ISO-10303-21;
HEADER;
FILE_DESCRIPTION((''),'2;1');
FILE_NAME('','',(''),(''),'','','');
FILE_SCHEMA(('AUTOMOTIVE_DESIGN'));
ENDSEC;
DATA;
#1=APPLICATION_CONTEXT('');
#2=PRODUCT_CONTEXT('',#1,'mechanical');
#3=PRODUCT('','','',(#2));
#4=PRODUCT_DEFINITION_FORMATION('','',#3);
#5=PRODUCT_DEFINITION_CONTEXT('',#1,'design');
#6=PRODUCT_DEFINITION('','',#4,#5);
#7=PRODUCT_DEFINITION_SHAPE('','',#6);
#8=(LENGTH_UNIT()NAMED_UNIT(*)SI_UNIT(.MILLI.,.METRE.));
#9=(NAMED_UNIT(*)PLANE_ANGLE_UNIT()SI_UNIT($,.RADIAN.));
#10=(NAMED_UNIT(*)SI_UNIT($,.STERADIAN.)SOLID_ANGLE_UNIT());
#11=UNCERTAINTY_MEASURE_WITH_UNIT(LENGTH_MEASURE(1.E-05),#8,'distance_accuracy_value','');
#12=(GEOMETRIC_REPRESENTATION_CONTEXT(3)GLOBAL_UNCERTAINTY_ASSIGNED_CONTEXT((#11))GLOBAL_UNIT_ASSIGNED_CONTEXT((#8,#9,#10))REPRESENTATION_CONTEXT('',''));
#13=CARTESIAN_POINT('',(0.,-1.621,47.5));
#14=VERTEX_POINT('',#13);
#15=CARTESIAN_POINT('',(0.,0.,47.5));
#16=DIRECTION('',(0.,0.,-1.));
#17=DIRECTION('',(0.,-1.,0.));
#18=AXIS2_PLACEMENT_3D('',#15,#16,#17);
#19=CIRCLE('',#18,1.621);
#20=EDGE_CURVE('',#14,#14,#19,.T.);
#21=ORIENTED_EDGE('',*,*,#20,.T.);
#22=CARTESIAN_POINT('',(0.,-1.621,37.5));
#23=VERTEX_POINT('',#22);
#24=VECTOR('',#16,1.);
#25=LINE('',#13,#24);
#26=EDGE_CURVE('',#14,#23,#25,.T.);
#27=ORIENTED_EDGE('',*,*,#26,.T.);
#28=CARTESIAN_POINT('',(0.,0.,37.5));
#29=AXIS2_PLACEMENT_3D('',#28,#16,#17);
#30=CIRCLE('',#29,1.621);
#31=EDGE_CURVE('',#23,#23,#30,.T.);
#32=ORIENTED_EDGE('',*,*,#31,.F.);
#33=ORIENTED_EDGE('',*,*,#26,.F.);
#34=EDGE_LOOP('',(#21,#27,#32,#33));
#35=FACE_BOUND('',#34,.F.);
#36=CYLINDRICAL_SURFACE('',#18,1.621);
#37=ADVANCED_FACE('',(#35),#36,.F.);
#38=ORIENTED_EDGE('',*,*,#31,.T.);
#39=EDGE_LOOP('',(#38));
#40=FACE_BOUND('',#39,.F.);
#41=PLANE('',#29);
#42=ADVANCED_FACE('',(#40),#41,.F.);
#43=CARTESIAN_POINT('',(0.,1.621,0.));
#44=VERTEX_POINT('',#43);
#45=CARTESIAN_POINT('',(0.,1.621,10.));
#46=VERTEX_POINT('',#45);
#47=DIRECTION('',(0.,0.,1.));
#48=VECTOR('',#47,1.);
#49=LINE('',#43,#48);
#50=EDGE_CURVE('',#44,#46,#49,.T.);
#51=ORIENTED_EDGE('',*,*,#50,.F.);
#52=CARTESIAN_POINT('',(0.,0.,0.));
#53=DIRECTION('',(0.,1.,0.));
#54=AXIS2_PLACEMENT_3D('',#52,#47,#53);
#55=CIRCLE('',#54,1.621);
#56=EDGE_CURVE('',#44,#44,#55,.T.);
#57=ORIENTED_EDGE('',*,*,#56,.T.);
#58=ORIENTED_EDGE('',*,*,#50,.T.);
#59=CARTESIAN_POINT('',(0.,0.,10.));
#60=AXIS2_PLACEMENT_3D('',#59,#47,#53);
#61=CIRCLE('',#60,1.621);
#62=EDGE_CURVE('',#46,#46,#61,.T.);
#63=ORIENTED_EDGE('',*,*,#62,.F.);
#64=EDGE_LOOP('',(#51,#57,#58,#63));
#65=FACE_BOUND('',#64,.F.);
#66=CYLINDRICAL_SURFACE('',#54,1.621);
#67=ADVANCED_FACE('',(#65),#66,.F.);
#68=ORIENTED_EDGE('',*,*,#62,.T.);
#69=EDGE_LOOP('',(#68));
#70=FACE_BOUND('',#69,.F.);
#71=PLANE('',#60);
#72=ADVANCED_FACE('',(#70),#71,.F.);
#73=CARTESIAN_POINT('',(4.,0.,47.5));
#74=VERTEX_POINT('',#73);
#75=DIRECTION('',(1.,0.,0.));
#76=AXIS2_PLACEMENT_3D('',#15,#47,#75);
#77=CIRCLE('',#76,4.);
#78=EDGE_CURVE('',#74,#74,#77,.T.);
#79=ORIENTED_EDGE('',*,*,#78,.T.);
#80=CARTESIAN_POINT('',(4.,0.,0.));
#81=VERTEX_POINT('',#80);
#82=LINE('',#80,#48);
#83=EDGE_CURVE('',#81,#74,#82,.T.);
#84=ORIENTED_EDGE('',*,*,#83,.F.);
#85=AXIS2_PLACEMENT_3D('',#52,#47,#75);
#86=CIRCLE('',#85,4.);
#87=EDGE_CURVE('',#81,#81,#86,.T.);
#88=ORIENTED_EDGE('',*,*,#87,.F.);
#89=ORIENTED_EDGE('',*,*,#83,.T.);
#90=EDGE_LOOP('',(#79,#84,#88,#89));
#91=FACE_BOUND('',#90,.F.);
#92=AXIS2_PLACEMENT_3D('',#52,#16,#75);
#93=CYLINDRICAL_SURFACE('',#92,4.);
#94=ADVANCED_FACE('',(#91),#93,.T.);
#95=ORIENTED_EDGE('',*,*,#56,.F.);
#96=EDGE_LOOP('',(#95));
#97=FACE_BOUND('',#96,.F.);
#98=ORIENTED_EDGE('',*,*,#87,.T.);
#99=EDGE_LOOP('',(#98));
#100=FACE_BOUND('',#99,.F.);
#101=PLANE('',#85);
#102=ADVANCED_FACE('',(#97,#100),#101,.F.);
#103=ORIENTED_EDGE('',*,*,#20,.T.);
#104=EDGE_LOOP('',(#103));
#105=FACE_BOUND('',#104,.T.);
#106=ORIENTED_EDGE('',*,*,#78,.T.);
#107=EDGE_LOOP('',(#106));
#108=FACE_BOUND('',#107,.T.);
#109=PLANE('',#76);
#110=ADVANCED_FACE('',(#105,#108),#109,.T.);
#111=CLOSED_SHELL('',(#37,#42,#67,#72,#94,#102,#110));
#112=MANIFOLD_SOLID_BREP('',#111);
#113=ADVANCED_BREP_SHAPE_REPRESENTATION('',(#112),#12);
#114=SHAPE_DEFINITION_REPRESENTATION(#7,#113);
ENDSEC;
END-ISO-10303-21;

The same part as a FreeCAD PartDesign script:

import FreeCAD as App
import Part
import Sketcher
Q = App.Units.Quantity

doc = App.newDocument("Part")
body = doc.addObject("PartDesign::Body", "Body")

# Sketch on XY plane
sketch1 = body.newObject("Sketcher::SketchObject", "Sketch")
sketch1.AttachmentSupport = (doc.getObject("XY_Plane"), [""])
sketch1.MapMode = "FlatFace"
sketch1.addGeometry(Part.Circle(App.Vector(0, 0, 0), App.Vector(0, 0, 1), 4), False)
sketch1.addConstraint([
    Sketcher.Constraint("Coincident", 0, 3, -1, 1),
    Sketcher.Constraint("Diameter", 0, Q("8 mm")),
])
pad1 = body.newObject("PartDesign::Pad", "Pad")
pad1.Profile = sketch1
pad1.Length = 47.5

# Sketch on XY plane
sketch2 = body.newObject("Sketcher::SketchObject", "Sketch001")
sketch2.AttachmentSupport = (doc.getObject("XY_Plane"), [""])
sketch2.MapMode = "FlatFace"
sketch2.addGeometry(Part.Circle(App.Vector(0, 0, 0), App.Vector(0, 0, 1), 1.6), False)
sketch2.addConstraint([
    Sketcher.Constraint("Coincident", 0, 3, -1, 1),
    Sketcher.Constraint("Diameter", 0, Q("3.242 mm")),
])
doc.recompute()
hole = body.newObject("PartDesign::Hole", "Hole")
hole.Profile = sketch2
hole.ThreadType = "None"
hole.Diameter = 3.242
hole.DepthType = "Dimension"
hole.Depth = 10
hole.DrillPoint = "Flat"
hole.Reversed = True

# Sketch on XY plane
sketch3 = body.newObject("Sketcher::SketchObject", "Sketch002")
sketch3.AttachmentSupport = (doc.getObject("XY_Plane"), [""])
sketch3.MapMode = "FlatFace"
sketch3.AttachmentOffset = App.Placement(App.Vector(0, 0, 47.5), App.Rotation())
sketch3.addGeometry(Part.Circle(App.Vector(0, 0, 0), App.Vector(0, 0, 1), 1.6), False)
sketch3.addConstraint([
    Sketcher.Constraint("Coincident", 0, 3, -1, 1),
    Sketcher.Constraint("Diameter", 0, Q("3.242 mm")),
])
doc.recompute()
hole2 = body.newObject("PartDesign::Hole", "Hole001")
hole2.Profile = sketch3
hole2.ThreadType = "None"
hole2.Diameter = 3.242
hole2.DepthType = "Dimension"
hole2.Depth = 10
hole2.DrillPoint = "Flat"

doc.recompute()
